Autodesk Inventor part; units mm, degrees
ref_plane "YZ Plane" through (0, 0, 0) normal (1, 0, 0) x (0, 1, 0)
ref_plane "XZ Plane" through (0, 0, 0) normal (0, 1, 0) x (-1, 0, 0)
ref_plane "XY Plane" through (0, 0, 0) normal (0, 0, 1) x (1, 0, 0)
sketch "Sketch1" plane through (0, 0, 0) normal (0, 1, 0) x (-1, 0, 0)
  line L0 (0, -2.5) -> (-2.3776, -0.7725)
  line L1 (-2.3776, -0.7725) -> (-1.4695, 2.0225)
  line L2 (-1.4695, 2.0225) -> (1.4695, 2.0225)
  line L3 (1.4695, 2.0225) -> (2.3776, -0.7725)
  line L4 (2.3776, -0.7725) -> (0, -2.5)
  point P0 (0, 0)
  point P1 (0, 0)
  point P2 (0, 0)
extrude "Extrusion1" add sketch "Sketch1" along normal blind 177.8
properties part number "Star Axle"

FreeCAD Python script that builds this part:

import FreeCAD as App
import Part
import Sketcher

V = App.Vector
Q = App.Units.Quantity

doc = App.newDocument("Part")
params = doc.addObject("Spreadsheet::Sheet", "Params")
for row, (alias, value) in enumerate([
    ("pad1_length", "7 in"),
], start=1):
    params.set(f"A{row}", alias)
    params.set(f"B{row}", "=" + value)
    params.setAlias(f"B{row}", alias)

body = doc.addObject("PartDesign::Body", "Body")

# Sketch on XZ plane
sketch1 = body.newObject("Sketcher::SketchObject", "Sketch")
sketch1.AttachmentSupport = (doc.getObject("XZ_Plane"), [""])
sketch1.MapMode = "FlatFace"
sketch1.addGeometry(Part.LineSegment(V(2.3776, -0.7725, 0), V(0, -2.5, 0)), False)
sketch1.addGeometry(Part.LineSegment(V(0, -2.5, 0), V(-2.3776, -0.7725, 0)), False)
sketch1.addGeometry(Part.LineSegment(V(-2.3776, -0.7725, 0), V(-1.4695, 2.0225, 0)), False)
sketch1.addGeometry(Part.LineSegment(V(-1.4695, 2.0225, 0), V(1.4695, 2.0225, 0)), False)
sketch1.addGeometry(Part.LineSegment(V(1.4695, 2.0225, 0), V(2.3776, -0.7725, 0)), False)
sketch1.addConstraint(Sketcher.Constraint("Coincident", 0, 2, 1, 1))
sketch1.addConstraint(Sketcher.Constraint("Coincident", 1, 2, 2, 1))
sketch1.addConstraint(Sketcher.Constraint("Coincident", 2, 2, 3, 1))
sketch1.addConstraint(Sketcher.Constraint("Coincident", 3, 2, 4, 1))
sketch1.addConstraint(Sketcher.Constraint("Coincident", 4, 2, 0, 1))
sketch1.addConstraint(Sketcher.Constraint("Horizontal", 3))
sketch1.addConstraint(Sketcher.Constraint("Symmetric", 1, 2, 4, 2, -2))
sketch1.addConstraint(Sketcher.Constraint("PointOnObject", 0, 2, -2))
sketch1.addConstraint(Sketcher.Constraint("Equal", 1, 2))
sketch1.addConstraint(Sketcher.Constraint("Equal", 2, 4))
sketch1.addConstraint(Sketcher.Constraint("Angle", 0, Q("-143.9989 deg")))
sketch1.addConstraint(Sketcher.Constraint("Angle", 2, Q("72.001 deg")))
sketch1.addConstraint(Sketcher.Constraint("DistanceX", 3, 1, 3, 2, Q("0.1157 in")))
sketch1.addConstraint(Sketcher.Constraint("DistanceY", 0, 2, -1, 1, Q("2.5 mm")))
pad1 = body.newObject("PartDesign::Pad", "Pad")
pad1.Profile = sketch1
pad1.setExpression("Length", "Params.pad1_length")
pad1.Reversed = True

doc.recompute()
